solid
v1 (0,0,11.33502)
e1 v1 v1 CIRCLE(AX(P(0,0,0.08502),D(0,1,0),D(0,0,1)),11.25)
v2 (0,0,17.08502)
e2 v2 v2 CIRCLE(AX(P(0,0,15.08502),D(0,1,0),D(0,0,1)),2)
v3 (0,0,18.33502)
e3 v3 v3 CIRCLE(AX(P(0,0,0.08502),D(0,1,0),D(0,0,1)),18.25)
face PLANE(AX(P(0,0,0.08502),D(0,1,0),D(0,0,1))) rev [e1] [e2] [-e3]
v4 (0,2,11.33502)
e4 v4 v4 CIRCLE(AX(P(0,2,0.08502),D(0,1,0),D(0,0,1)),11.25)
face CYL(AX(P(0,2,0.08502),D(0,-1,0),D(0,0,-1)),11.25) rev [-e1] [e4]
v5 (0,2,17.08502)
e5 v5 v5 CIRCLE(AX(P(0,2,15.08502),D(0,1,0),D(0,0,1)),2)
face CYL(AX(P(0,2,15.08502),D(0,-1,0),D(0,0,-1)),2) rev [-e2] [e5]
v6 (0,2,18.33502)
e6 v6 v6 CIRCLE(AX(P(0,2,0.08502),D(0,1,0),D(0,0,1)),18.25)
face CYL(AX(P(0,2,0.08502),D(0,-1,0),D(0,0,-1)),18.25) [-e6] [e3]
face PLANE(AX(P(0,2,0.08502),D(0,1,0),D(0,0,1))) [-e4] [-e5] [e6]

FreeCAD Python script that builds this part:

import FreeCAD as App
import Part
import Sketcher
from FreeCAD import Vector

doc = App.newDocument("Part")
body = doc.addObject("PartDesign::Body", "Body")

sketch1 = doc.addObject("Sketcher::SketchObject", "Sketch")
body.addObject(sketch1)
sketch1.AttachmentSupport = (doc.XZ_Plane, [""])
sketch1.MapMode = "FlatFace"
sketch1.addGeometry([
    Part.Circle(Vector(0, 0.08502, 0), Vector(0, 0, 1), 18.25),
    Part.Circle(Vector(0, 0.08502, 0), Vector(0, 0, 1), 11.25),
    Part.Circle(Vector(0, 15.08502, 0), Vector(0, 0, 1), 2),
], False)
sketch1.addConstraint([
    Sketcher.Constraint("Coincident", 1, 3, 0, 3),
    Sketcher.Constraint("PointOnObject", 0, 3, -2),
    Sketcher.Constraint("PointOnObject", 2, 3, -2),
    Sketcher.Constraint("Diameter", 2, 4.0),
    Sketcher.Constraint("Diameter", 0, 36.5),
    Sketcher.Constraint("Diameter", 1, 22.5),
    Sketcher.Constraint("DistanceY", 0, 3, 2, 3, 15.0),
    Sketcher.Constraint("DistanceY", -1, 1, 0, 3, 0.08502),
])
pad1 = doc.addObject("PartDesign::Pad", "Pad")
body.addObject(pad1)
pad1.Profile = sketch1
pad1.Length = 2
pad1.Reversed = True

doc.recompute()
